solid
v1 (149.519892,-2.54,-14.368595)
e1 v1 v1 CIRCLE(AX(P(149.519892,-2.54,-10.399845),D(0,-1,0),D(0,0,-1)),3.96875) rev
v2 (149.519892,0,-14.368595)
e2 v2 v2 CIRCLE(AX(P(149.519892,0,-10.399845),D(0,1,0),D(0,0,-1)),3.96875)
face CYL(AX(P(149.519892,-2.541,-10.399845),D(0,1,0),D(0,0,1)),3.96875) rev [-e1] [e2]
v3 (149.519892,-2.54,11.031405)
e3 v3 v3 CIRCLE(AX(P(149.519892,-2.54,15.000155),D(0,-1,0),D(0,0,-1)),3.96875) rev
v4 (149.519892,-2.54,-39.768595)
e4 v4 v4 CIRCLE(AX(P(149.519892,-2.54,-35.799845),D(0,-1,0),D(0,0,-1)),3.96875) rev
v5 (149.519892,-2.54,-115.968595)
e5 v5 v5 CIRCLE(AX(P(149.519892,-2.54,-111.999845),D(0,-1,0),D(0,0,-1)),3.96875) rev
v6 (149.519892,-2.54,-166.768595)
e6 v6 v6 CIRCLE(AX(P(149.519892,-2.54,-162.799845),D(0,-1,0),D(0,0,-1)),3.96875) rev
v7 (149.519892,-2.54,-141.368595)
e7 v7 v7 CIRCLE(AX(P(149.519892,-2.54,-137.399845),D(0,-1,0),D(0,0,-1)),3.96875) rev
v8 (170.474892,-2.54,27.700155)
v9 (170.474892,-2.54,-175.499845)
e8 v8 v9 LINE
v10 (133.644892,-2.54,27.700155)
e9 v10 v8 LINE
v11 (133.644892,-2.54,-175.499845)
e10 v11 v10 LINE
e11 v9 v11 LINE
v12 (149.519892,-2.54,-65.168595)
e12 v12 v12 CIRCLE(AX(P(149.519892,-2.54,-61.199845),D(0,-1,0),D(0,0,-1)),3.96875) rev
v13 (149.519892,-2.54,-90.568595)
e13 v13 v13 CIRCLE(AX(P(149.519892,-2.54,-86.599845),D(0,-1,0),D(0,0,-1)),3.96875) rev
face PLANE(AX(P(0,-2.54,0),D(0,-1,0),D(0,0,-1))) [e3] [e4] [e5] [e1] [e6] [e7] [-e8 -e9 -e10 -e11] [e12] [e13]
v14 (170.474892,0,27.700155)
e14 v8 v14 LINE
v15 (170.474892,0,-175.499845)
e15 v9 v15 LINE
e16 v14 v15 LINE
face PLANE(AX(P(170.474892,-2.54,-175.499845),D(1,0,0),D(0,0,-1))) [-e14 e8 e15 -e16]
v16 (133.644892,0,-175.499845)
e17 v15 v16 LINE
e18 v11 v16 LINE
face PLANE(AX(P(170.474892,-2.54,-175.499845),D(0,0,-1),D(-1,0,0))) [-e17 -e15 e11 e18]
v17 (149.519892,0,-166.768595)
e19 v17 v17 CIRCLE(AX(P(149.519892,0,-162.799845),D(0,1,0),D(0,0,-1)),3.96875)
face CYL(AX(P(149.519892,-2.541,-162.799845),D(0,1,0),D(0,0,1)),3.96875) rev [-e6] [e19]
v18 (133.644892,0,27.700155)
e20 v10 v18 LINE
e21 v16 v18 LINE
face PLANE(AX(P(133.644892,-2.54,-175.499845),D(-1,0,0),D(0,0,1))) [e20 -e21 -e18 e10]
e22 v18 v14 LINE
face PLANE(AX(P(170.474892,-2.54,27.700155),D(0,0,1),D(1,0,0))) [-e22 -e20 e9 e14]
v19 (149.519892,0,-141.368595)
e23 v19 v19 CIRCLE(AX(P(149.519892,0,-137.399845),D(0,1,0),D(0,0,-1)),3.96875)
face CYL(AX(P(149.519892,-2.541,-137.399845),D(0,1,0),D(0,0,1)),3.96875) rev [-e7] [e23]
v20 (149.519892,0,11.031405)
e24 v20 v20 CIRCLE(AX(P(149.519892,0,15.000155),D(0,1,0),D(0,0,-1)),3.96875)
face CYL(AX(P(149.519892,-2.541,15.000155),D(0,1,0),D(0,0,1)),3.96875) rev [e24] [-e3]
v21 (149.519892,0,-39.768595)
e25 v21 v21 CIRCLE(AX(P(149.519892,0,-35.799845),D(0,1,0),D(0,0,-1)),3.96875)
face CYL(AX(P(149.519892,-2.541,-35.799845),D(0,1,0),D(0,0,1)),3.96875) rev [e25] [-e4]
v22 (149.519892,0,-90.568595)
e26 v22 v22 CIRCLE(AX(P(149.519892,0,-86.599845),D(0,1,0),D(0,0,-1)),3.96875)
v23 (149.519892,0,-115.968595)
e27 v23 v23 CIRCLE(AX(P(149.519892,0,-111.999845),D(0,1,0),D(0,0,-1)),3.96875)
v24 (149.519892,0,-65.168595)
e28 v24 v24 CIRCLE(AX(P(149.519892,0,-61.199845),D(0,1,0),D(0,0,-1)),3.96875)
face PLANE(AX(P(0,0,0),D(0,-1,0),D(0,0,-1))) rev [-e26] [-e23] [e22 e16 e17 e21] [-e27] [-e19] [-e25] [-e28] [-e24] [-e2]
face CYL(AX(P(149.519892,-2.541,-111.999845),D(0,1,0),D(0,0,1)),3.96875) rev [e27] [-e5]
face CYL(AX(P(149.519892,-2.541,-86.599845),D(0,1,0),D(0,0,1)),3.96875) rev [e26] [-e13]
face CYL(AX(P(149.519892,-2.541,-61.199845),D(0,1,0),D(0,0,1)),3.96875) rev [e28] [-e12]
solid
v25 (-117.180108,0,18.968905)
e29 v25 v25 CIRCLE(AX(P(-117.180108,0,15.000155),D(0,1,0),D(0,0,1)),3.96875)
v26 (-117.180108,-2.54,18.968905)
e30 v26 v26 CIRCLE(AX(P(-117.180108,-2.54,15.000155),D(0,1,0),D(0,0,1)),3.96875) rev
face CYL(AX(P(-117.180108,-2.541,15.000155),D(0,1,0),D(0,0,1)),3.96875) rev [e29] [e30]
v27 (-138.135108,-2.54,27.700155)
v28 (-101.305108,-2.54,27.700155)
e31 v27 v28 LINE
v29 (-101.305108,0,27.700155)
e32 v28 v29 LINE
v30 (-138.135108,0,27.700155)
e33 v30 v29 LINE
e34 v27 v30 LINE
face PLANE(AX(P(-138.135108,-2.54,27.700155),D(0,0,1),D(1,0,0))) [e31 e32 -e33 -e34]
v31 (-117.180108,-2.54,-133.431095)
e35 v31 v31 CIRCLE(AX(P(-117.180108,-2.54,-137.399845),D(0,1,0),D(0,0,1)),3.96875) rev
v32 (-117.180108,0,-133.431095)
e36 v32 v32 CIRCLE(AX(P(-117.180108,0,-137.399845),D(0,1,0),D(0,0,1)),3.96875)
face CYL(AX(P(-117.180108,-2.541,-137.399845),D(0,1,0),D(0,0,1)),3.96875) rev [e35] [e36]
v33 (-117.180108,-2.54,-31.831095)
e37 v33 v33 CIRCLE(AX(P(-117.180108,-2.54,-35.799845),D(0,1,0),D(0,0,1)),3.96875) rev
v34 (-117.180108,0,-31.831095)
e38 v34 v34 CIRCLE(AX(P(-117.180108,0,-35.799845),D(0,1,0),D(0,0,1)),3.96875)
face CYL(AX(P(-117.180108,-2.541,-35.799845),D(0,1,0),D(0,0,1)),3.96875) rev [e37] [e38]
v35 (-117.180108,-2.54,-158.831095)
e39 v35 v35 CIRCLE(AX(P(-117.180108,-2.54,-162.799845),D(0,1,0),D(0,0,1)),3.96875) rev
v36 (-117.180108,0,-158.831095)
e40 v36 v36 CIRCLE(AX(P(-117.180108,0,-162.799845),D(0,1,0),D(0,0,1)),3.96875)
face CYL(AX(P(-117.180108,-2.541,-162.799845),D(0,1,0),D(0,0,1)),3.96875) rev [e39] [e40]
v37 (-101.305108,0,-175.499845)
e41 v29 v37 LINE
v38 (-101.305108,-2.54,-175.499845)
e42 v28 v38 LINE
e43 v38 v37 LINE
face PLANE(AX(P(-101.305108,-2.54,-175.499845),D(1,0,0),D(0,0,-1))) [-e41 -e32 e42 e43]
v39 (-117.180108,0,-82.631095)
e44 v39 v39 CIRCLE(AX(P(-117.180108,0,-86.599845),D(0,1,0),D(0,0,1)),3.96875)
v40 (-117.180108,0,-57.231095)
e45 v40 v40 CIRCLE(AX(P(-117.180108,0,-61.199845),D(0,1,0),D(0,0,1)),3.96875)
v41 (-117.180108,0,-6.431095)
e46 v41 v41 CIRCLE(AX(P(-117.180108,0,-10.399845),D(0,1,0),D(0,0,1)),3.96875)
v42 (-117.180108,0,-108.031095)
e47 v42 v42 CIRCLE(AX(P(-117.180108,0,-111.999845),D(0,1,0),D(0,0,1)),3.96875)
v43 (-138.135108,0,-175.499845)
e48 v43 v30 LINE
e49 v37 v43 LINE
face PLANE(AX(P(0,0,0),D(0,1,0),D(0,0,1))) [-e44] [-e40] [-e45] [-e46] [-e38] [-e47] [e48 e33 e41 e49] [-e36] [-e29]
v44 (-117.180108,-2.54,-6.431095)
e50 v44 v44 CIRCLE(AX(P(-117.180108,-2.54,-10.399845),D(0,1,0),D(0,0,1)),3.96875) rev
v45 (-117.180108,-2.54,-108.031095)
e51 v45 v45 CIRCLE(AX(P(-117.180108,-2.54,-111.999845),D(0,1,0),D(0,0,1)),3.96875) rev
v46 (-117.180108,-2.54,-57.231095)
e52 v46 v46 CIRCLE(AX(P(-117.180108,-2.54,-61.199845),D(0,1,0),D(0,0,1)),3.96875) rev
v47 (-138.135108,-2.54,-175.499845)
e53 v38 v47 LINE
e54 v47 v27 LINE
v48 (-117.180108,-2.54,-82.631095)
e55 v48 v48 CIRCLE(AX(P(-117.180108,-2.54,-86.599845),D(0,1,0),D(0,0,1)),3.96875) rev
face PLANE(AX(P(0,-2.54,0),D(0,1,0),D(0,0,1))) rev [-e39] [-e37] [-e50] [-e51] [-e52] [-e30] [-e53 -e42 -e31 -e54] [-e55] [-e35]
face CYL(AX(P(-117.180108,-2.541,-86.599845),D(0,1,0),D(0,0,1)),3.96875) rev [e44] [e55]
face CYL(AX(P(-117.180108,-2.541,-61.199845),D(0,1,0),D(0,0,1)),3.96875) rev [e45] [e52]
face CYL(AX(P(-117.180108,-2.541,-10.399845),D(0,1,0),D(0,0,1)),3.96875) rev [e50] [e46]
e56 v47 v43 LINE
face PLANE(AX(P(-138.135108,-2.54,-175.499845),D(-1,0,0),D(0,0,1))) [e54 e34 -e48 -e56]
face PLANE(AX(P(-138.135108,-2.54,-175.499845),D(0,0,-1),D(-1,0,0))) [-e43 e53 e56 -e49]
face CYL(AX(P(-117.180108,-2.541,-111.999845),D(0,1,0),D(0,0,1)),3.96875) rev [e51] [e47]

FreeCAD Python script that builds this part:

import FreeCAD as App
import Part
import Sketcher
Q = App.Units.Quantity

doc = App.newDocument("Part")
body = doc.addObject("PartDesign::Body", "Body")

# Sketch on XZ plane
sketch1 = body.newObject("Sketcher::SketchObject", "Sketch")
sketch1.AttachmentSupport = (doc.getObject("XZ_Plane"), [""])
sketch1.MapMode = "FlatFace"
sketch1.addGeometry([
    Part.LineSegment(App.Vector(-138, -175, 0), App.Vector(-138, 28, 0)),
    Part.LineSegment(App.Vector(-138, 28, 0), App.Vector(-101, 28, 0)),
    Part.LineSegment(App.Vector(-101, 28, 0), App.Vector(-101, -175, 0)),
    Part.LineSegment(App.Vector(-101, -175, 0), App.Vector(-138, -175, 0)),
], False)
sketch1.addConstraint([
    Sketcher.Constraint("Coincident", 0, 2, 1, 1),
    Sketcher.Constraint("Coincident", 1, 2, 2, 1),
    Sketcher.Constraint("Coincident", 2, 2, 3, 1),
    Sketcher.Constraint("Coincident", 3, 2, 0, 1),
    Sketcher.Constraint("Vertical", 0),
    Sketcher.Constraint("Horizontal", 1),
    Sketcher.Constraint("Vertical", 2),
    Sketcher.Constraint("Horizontal", 3),
    Sketcher.Constraint("DistanceY", 0, 1, 0, 2, Q("8 in")),
    Sketcher.Constraint("DistanceX", 1, 1, 1, 2, Q("1.45 in")),
    Sketcher.Constraint("DistanceX", 0, 2, -1, 1, Q("138.135108 mm")),
    Sketcher.Constraint("DistanceY", -1, 1, 0, 2, Q("27.700155 mm")),
])
pad1 = body.newObject("PartDesign::Pad", "Pad")
pad1.Profile = sketch1
pad1.Length = Q("0.1 in")
body2 = doc.addObject("PartDesign::Body", "Body001")

# Sketch on XZ plane
sketch2 = body2.newObject("Sketcher::SketchObject", "Sketch001")
sketch2.AttachmentSupport = (doc.getObject("XZ_Plane001"), [""])
sketch2.MapMode = "FlatFace"
sketch2.addGeometry([
    Part.LineSegment(App.Vector(134, -175, 0), App.Vector(134, 28, 0)),
    Part.LineSegment(App.Vector(134, 28, 0), App.Vector(170, 28, 0)),
    Part.LineSegment(App.Vector(170, 28, 0), App.Vector(170, -175, 0)),
    Part.LineSegment(App.Vector(170, -175, 0), App.Vector(134, -175, 0)),
], False)
sketch2.addConstraint([
    Sketcher.Constraint("Coincident", 0, 2, 1, 1),
    Sketcher.Constraint("Coincident", 1, 2, 2, 1),
    Sketcher.Constraint("Coincident", 2, 2, 3, 1),
    Sketcher.Constraint("Coincident", 3, 2, 0, 1),
    Sketcher.Constraint("Vertical", 0),
    Sketcher.Constraint("Horizontal", 1),
    Sketcher.Constraint("Vertical", 2),
    Sketcher.Constraint("Horizontal", 3),
    Sketcher.Constraint("DistanceY", 0, 1, 0, 2, Q("8 in")),
    Sketcher.Constraint("DistanceX", 1, 1, 1, 2, Q("1.45 in")),
    Sketcher.Constraint("DistanceX", -1, 1, 0, 2, Q("133.644892 mm")),
    Sketcher.Constraint("DistanceY", -1, 1, 0, 2, Q("27.700155 mm")),
])
pad2 = body2.newObject("PartDesign::Pad", "Pad001")
pad2.Profile = sketch2
pad2.Length = Q("0.1 in")
body3 = doc.addObject("PartDesign::Body", "Body002")
body3.AllowCompound = True

# Sketch on XZ plane
sketch3 = body3.newObject("Sketcher::SketchObject", "Sketch002")
sketch3.AttachmentSupport = (doc.getObject("XZ_Plane002"), [""])
sketch3.MapMode = "FlatFace"
sketch3.addGeometry([
    Part.Circle(App.Vector(-117.2, -162.8, 0), App.Vector(0, 0, 1), 4),  # 0
    Part.Circle(App.Vector(-117.2, -137.4, 0), App.Vector(0, 0, 1), 4),  # 1
    Part.Circle(App.Vector(-117.2, -112, 0), App.Vector(0, 0, 1), 4),  # 2
    Part.Circle(App.Vector(-117.2, -86.6, 0), App.Vector(0, 0, 1), 4),  # 3
    Part.Circle(App.Vector(-117.2, -61.2, 0), App.Vector(0, 0, 1), 4),  # 4
    Part.Circle(App.Vector(-117.2, -35.8, 0), App.Vector(0, 0, 1), 4),  # 5
    Part.Circle(App.Vector(-117.2, -10.4, 0), App.Vector(0, 0, 1), 4),  # 6
    Part.Circle(App.Vector(-117.2, 15, 0), App.Vector(0, 0, 1), 4),  # 7
    Part.Circle(App.Vector(149.5, 15, 0), App.Vector(0, 0, 1), 4),  # 8
    Part.Circle(App.Vector(149.5, -10.4, 0), App.Vector(0, 0, 1), 4),  # 9
    Part.Circle(App.Vector(149.5, -35.8, 0), App.Vector(0, 0, 1), 4),  # 10
    Part.Circle(App.Vector(149.5, -61.2, 0), App.Vector(0, 0, 1), 4),  # 11
    Part.Circle(App.Vector(149.5, -86.6, 0), App.Vector(0, 0, 1), 4),  # 12
    Part.Circle(App.Vector(149.5, -112, 0), App.Vector(0, 0, 1), 4),  # 13
    Part.Circle(App.Vector(149.5, -137.4, 0), App.Vector(0, 0, 1), 4),  # 14
    Part.Circle(App.Vector(149.5, -162.8, 0), App.Vector(0, 0, 1), 4),  # 15
], False)
sketch3.addConstraint([
    Sketcher.Constraint("Equal", 0, 1),
    Sketcher.Constraint("Equal", 1, 2),
    Sketcher.Constraint("Equal", 2, 3),
    Sketcher.Constraint("Equal", 3, 4),
    Sketcher.Constraint("Equal", 4, 5),
    Sketcher.Constraint("Equal", 5, 6),
    Sketcher.Constraint("Equal", 6, 7),
    Sketcher.Constraint("Equal", 7, 8),
    Sketcher.Constraint("Equal", 8, 9),
    Sketcher.Constraint("Equal", 9, 10),
    Sketcher.Constraint("Equal", 10, 11),
    Sketcher.Constraint("Equal", 11, 12),
    Sketcher.Constraint("Equal", 12, 13),
    Sketcher.Constraint("Equal", 13, 14),
    Sketcher.Constraint("Equal", 14, 15),
    Sketcher.Constraint("Horizontal", 7, 3, 8, 3),
    Sketcher.Constraint("Horizontal", 6, 3, 9, 3),
    Sketcher.Constraint("Horizontal", 5, 3, 10, 3),
    Sketcher.Constraint("Horizontal", 4, 3, 11, 3),
    Sketcher.Constraint("Horizontal", 3, 3, 12, 3),
    Sketcher.Constraint("Horizontal", 2, 3, 13, 3),
    Sketcher.Constraint("Horizontal", 1, 3, 14, 3),
    Sketcher.Constraint("Horizontal", 0, 3, 15, 3),
    Sketcher.Constraint("Vertical", 0, 3, 1, 3),
    Sketcher.Constraint("Vertical", 1, 3, 2, 3),
    Sketcher.Constraint("Vertical", 2, 3, 3, 3),
    Sketcher.Constraint("Vertical", 3, 3, 4, 3),
    Sketcher.Constraint("Vertical", 4, 3, 5, 3),
    Sketcher.Constraint("Vertical", 5, 3, 6, 3),
    Sketcher.Constraint("Vertical", 6, 3, 7, 3),
    Sketcher.Constraint("Vertical", 8, 3, 9, 3),
    Sketcher.Constraint("Vertical", 9, 3, 10, 3),
    Sketcher.Constraint("Vertical", 10, 3, 11, 3),
    Sketcher.Constraint("Vertical", 11, 3, 12, 3),
    Sketcher.Constraint("Vertical", 12, 3, 13, 3),
    Sketcher.Constraint("Vertical", 13, 3, 14, 3),
    Sketcher.Constraint("Vertical", 14, 3, 15, 3),
    Sketcher.Constraint("Diameter", 0, Q("0.3125 in")),
    Sketcher.Constraint("DistanceY", 0, 3, 1, 3, Q("1 in")),
    Sketcher.Constraint("DistanceY", 1, 3, 2, 3, Q("1 in")),
    Sketcher.Constraint("DistanceY", 2, 3, 3, 3, Q("1 in")),
    Sketcher.Constraint("DistanceY", 3, 3, 4, 3, Q("1 in")),
    Sketcher.Constraint("DistanceY", 4, 3, 5, 3, Q("1 in")),
    Sketcher.Constraint("DistanceY", 5, 3, 6, 3, Q("1 in")),
    Sketcher.Constraint("DistanceY", 6, 3, 7, 3, Q("1 in")),
    Sketcher.Constraint("DistanceX", 7, 3, 8, 3, Q("10.5 in")),
    Sketcher.Constraint("DistanceX", 0, 3, -1, 1, Q("117.180108 mm")),
    Sketcher.Constraint("DistanceY", 0, 3, -1, 1, Q("162.799845 mm")),
])
pad3 = body3.newObject("PartDesign::Pad", "Pad002")
pad3.Profile = sketch3
pad3.Length = Q("0.1 in")
doc.recompute()

body4 = doc.addObject("PartDesign::Body", "Body003")
body4.BaseFeature = body3
boolean = body.newObject("PartDesign::Boolean", "Boolean")
boolean.Type = "Cut"
boolean.addObjects([body4])
doc.recompute()

boolean2 = body2.newObject("PartDesign::Boolean", "Boolean001")
boolean2.Type = "Cut"
boolean2.addObjects([body3])

doc.recompute()
